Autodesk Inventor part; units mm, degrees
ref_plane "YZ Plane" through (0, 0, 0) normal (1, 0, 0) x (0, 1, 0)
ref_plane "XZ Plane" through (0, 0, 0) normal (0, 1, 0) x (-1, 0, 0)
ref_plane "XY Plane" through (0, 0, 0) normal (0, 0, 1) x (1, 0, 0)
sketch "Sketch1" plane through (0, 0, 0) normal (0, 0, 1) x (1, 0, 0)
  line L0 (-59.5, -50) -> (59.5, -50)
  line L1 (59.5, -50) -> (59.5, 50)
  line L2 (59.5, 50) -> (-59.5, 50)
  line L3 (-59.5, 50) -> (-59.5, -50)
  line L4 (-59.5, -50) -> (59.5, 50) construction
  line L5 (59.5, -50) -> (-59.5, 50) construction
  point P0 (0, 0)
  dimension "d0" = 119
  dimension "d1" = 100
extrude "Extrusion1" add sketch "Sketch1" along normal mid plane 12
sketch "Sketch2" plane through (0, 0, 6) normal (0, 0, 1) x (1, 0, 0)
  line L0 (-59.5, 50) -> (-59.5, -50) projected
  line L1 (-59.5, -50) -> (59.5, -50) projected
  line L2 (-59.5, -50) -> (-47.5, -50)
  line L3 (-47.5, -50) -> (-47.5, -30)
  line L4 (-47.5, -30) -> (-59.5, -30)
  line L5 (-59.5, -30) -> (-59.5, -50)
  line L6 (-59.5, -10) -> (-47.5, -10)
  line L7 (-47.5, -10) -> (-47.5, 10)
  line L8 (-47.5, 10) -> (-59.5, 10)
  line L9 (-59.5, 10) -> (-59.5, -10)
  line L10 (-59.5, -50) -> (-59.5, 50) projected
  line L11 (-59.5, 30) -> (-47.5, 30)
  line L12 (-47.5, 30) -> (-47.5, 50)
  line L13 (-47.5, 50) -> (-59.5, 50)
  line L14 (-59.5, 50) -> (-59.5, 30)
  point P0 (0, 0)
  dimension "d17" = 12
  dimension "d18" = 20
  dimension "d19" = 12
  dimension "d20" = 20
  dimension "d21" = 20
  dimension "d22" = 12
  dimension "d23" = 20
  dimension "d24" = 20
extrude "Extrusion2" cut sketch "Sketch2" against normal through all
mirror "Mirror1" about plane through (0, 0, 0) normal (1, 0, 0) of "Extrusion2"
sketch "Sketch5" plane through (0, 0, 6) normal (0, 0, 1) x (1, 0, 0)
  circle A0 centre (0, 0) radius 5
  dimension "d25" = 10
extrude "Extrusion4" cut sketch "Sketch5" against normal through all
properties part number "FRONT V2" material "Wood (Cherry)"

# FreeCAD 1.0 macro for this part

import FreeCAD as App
import Part
import Sketcher

V = App.Vector

doc = App.newDocument("Part")
body = doc.addObject("PartDesign::Body", "Body")

# Sketch on XY plane
sketch1 = doc.addObject("Sketcher::SketchObject", "Sketch")
body.addObject(sketch1)
sketch1.AttachmentSupport = (doc.XY_Plane, [""])
sketch1.MapMode = "FlatFace"
sketch1.addGeometry(Part.LineSegment(V(-60, 50, 0), V(-60, -50, 0)), False)
sketch1.addGeometry(Part.LineSegment(V(-60, -50, 0), V(60, -50, 0)), False)
sketch1.addGeometry(Part.LineSegment(V(60, -50, 0), V(60, 50, 0)), False)
sketch1.addGeometry(Part.LineSegment(V(60, 50, 0), V(-60, 50, 0)), False)
sketch1.addConstraint(Sketcher.Constraint("Coincident", 0, 2, 1, 1))
sketch1.addConstraint(Sketcher.Constraint("Coincident", 1, 2, 2, 1))
sketch1.addConstraint(Sketcher.Constraint("Coincident", 2, 2, 3, 1))
sketch1.addConstraint(Sketcher.Constraint("Coincident", 3, 2, 0, 1))
sketch1.addConstraint(Sketcher.Constraint("Vertical", 0))
sketch1.addConstraint(Sketcher.Constraint("Horizontal", 1))
sketch1.addConstraint(Sketcher.Constraint("Vertical", 2))
sketch1.addConstraint(Sketcher.Constraint("Horizontal", 3))
sketch1.addConstraint(Sketcher.Constraint("Symmetric", 0, 2, 2, 2, -1, 1))
sketch1.addConstraint(Sketcher.Constraint("DistanceX", 1, 1, 1, 2, 119.0))
sketch1.addConstraint(Sketcher.Constraint("DistanceY", 0, 2, 0, 1, 100.0))
pad1 = doc.addObject("PartDesign::Pad", "Pad")
body.addObject(pad1)
pad1.Profile = sketch1
pad1.Length = 12
pad1.Midplane = True

# Sketch on XY plane
sketch2 = doc.addObject("Sketcher::SketchObject", "Sketch001")
body.addObject(sketch2)
sketch2.AttachmentSupport = (doc.XY_Plane, [""])
sketch2.MapMode = "FlatFace"
sketch2.AttachmentOffset = App.Placement(V(0, 0, 6), App.Rotation())
sketch2.addGeometry(Part.LineSegment(V(-48, 50, 0), V(-60, 50, 0)), False)
sketch2.addGeometry(Part.LineSegment(V(-60, 50, 0), V(-60, 30, 0)), False)
sketch2.addGeometry(Part.LineSegment(V(-60, 30, 0), V(-48, 30, 0)), False)
sketch2.addGeometry(Part.LineSegment(V(-48, 30, 0), V(-48, 50, 0)), False)
sketch2.addGeometry(Part.LineSegment(V(-48, -30, 0), V(-60, -30, 0)), False)
sketch2.addGeometry(Part.LineSegment(V(-60, -30, 0), V(-60, -50, 0)), False)
sketch2.addGeometry(Part.LineSegment(V(-60, -50, 0), V(-48, -50, 0)), False)
sketch2.addGeometry(Part.LineSegment(V(-48, -50, 0), V(-48, -30, 0)), False)
sketch2.addGeometry(Part.LineSegment(V(-48, 10, 0), V(-60, 10, 0)), False)
sketch2.addGeometry(Part.LineSegment(V(-60, 10, 0), V(-60, -10, 0)), False)
sketch2.addGeometry(Part.LineSegment(V(-60, -10, 0), V(-48, -10, 0)), False)
sketch2.addGeometry(Part.LineSegment(V(-48, -10, 0), V(-48, 10, 0)), False)
sketch2.addConstraint(Sketcher.Constraint("Coincident", 0, 2, 1, 1))
sketch2.addConstraint(Sketcher.Constraint("Coincident", 1, 2, 2, 1))
sketch2.addConstraint(Sketcher.Constraint("Coincident", 2, 2, 3, 1))
sketch2.addConstraint(Sketcher.Constraint("Coincident", 3, 2, 0, 1))
sketch2.addConstraint(Sketcher.Constraint("Coincident", 4, 2, 5, 1))
sketch2.addConstraint(Sketcher.Constraint("Coincident", 5, 2, 6, 1))
sketch2.addConstraint(Sketcher.Constraint("Coincident", 6, 2, 7, 1))
sketch2.addConstraint(Sketcher.Constraint("Coincident", 7, 2, 4, 1))
sketch2.addConstraint(Sketcher.Constraint("Coincident", 8, 2, 9, 1))
sketch2.addConstraint(Sketcher.Constraint("Coincident", 9, 2, 10, 1))
sketch2.addConstraint(Sketcher.Constraint("Coincident", 10, 2, 11, 1))
sketch2.addConstraint(Sketcher.Constraint("Coincident", 11, 2, 8, 1))
sketch2.addConstraint(Sketcher.Constraint("Horizontal", 0))
sketch2.addConstraint(Sketcher.Constraint("Vertical", 1))
sketch2.addConstraint(Sketcher.Constraint("Horizontal", 2))
sketch2.addConstraint(Sketcher.Constraint("Vertical", 3))
sketch2.addConstraint(Sketcher.Constraint("Horizontal", 4))
sketch2.addConstraint(Sketcher.Constraint("Vertical", 5))
sketch2.addConstraint(Sketcher.Constraint("Horizontal", 6))
sketch2.addConstraint(Sketcher.Constraint("Vertical", 7))
sketch2.addConstraint(Sketcher.Constraint("Horizontal", 8))
sketch2.addConstraint(Sketcher.Constraint("Vertical", 9))
sketch2.addConstraint(Sketcher.Constraint("Horizontal", 10))
sketch2.addConstraint(Sketcher.Constraint("Vertical", 11))
sketch2.addConstraint(Sketcher.Constraint("Symmetric", 1, 2, 4, 2, -1))
sketch2.addConstraint(Sketcher.Constraint("Symmetric", 3, 2, 6, 2, -1))
sketch2.addConstraint(Sketcher.Constraint("Vertical", 5, 2, 8, 2))
sketch2.addConstraint(Sketcher.Constraint("Vertical", 7, 2, 10, 2))
sketch2.addConstraint(Sketcher.Constraint("Equal", 7, 9))
sketch2.addConstraint(Sketcher.Constraint("DistanceX", 0, 2, 0, 1, 12.0))
sketch2.addConstraint(Sketcher.Constraint("DistanceY", 1, 2, 1, 1, 20.0))
sketch2.addConstraint(Sketcher.Constraint("DistanceY", 8, 2, 1, 2, 20.0))
sketch2.addConstraint(Sketcher.Constraint("DistanceY", 4, 2, 9, 2, 20.0))
sketch2.addConstraint(Sketcher.Constraint("DistanceX", 0, 2, -1, 1, 59.5))
pocket1 = doc.addObject("PartDesign::Pocket", "Pocket")
body.addObject(pocket1)
pocket1.Profile = sketch2
pocket1.Type = "ThroughAll"
doc.recompute()

mirrored = doc.addObject("PartDesign::Mirrored", "Mirrored")
body.addObject(mirrored)
mirrored.Originals = [pocket1]
mirrored.MirrorPlane = (doc.YZ_Plane, [""])
body.Tip = mirrored

# Sketch on XY plane
sketch3 = doc.addObject("Sketcher::SketchObject", "Sketch002")
body.addObject(sketch3)
sketch3.AttachmentSupport = (doc.XY_Plane, [""])
sketch3.MapMode = "FlatFace"
sketch3.AttachmentOffset = App.Placement(V(0, 0, 6), App.Rotation())
sketch3.addGeometry(Part.Circle(V(0, 0, 0), V(0, 0, 1), 5), False)
sketch3.addConstraint(Sketcher.Constraint("Coincident", 0, 3, -1, 1))
sketch3.addConstraint(Sketcher.Constraint("Diameter", 0, 10.0))
pocket2 = doc.addObject("PartDesign::Pocket", "Pocket001")
body.addObject(pocket2)
pocket2.Profile = sketch3
pocket2.Type = "ThroughAll"

doc.recompute()
